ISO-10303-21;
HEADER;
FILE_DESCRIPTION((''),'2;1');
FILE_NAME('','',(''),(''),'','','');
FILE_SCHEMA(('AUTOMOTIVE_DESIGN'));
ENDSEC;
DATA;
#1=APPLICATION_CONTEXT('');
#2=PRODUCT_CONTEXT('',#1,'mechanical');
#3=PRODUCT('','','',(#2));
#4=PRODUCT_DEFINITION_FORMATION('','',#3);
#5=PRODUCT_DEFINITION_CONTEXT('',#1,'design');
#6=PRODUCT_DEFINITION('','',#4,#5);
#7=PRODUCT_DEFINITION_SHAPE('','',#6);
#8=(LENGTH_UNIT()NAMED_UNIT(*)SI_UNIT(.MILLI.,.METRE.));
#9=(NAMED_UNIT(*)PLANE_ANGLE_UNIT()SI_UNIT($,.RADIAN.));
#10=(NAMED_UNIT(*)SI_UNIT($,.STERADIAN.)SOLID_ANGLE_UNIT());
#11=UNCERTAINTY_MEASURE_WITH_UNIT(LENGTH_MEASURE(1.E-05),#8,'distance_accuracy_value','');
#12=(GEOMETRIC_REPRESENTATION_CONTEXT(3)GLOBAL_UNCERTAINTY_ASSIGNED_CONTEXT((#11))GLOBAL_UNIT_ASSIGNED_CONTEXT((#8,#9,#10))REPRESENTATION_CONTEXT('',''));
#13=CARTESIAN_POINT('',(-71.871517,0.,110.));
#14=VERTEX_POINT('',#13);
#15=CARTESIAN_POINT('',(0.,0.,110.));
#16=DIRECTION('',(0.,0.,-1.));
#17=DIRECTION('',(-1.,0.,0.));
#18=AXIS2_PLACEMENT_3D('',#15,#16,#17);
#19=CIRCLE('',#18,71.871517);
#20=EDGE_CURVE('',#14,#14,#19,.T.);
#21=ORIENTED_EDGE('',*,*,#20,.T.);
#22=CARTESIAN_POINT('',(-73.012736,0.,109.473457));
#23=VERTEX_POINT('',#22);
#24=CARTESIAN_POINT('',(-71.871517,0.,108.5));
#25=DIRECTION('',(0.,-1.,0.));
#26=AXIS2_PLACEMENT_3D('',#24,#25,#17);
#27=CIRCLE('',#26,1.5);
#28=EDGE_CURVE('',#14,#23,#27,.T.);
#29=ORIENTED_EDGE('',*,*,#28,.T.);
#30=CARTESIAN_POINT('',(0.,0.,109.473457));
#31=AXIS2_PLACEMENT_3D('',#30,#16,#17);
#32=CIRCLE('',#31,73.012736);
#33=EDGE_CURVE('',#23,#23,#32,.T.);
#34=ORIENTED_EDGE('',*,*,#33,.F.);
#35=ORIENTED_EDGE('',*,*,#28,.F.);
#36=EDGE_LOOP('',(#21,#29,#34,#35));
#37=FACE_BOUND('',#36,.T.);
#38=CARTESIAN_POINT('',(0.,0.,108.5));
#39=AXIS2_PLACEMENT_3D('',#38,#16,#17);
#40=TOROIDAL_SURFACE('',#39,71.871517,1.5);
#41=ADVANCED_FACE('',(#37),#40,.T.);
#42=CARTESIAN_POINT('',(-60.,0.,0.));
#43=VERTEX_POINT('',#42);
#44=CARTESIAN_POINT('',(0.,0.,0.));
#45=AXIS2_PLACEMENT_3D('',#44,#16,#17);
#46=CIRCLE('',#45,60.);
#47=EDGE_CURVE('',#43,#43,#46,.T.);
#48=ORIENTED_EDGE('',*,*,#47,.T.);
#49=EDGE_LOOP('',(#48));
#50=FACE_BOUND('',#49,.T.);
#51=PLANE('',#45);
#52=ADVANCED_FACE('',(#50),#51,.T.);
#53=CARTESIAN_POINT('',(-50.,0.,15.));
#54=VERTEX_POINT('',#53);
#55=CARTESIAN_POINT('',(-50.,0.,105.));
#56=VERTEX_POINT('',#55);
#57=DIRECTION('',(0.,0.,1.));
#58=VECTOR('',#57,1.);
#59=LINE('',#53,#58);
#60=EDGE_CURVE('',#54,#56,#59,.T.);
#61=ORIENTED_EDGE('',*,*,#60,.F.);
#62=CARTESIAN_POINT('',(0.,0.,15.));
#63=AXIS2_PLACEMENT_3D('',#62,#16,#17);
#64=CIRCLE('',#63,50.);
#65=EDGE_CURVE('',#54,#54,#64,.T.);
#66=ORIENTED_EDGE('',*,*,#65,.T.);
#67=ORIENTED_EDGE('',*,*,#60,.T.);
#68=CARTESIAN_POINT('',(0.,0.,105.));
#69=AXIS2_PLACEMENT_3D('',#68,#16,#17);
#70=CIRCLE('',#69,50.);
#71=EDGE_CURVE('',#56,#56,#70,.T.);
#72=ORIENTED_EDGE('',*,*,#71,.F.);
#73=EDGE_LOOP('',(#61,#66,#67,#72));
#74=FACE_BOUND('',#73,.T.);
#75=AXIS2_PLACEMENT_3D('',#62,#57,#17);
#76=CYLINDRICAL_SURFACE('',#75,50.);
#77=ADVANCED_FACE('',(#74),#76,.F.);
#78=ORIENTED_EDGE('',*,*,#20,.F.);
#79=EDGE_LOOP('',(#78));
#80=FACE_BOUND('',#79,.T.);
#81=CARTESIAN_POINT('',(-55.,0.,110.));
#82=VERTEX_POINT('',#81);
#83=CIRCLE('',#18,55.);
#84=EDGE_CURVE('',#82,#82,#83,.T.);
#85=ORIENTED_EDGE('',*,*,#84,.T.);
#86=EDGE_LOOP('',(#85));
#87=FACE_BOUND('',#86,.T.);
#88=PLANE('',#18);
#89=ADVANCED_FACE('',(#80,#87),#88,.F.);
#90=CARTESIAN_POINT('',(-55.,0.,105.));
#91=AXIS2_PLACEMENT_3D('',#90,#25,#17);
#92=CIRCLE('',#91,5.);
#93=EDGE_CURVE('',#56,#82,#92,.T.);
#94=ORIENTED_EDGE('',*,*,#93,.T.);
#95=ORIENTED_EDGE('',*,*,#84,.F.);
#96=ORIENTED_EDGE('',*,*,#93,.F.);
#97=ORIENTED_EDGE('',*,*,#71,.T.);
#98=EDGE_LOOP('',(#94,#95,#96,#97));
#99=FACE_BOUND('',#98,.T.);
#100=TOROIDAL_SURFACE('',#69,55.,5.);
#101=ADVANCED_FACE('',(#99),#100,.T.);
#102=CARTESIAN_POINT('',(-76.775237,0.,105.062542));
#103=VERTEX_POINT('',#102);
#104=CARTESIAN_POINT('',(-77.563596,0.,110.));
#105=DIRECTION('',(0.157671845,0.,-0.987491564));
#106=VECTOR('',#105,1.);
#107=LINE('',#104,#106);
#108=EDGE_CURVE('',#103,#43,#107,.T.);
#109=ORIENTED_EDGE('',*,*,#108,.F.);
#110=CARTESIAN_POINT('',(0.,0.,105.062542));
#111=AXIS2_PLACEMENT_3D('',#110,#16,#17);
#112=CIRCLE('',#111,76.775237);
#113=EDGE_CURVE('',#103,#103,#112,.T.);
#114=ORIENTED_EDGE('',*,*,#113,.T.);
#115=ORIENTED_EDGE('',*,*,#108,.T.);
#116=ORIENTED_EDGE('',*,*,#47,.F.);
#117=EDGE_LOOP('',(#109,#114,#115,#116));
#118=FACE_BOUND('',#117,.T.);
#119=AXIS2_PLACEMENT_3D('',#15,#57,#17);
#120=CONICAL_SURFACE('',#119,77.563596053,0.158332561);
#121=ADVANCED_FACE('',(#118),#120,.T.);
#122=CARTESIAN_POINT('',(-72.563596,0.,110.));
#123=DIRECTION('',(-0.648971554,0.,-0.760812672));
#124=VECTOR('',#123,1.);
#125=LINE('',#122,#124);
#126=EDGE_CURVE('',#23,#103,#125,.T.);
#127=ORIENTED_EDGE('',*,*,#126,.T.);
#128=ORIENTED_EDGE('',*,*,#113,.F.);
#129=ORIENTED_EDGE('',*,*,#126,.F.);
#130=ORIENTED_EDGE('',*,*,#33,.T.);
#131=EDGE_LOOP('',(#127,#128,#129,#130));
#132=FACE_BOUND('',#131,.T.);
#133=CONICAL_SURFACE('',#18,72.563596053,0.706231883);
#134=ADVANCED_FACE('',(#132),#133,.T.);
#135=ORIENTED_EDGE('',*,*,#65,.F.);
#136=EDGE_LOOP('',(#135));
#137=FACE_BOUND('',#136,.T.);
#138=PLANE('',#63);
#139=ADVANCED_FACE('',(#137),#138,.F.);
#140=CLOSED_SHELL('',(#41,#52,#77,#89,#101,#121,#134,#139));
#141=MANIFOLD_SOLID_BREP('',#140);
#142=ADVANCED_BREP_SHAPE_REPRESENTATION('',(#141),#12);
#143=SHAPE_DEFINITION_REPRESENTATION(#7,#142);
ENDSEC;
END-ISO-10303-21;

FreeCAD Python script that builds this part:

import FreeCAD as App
import Part
import Sketcher
from FreeCAD import Vector
Q = App.Units.Quantity


def edges_at(feature, points):
    """Names of the edges that pass closest to the given points."""
    edges = feature.Shape.Edges
    near = lambda p: min(range(len(edges)), key=lambda i: edges[i].distToShape(Part.Vertex(*p))[0])
    return sorted({f"Edge{near(p) + 1}" for p in points})

doc = App.newDocument("Part")
body = doc.addObject("PartDesign::Body", "Body")

sketch1 = body.newObject("Sketcher::SketchObject", "Sketch")
sketch1.AttachmentSupport = (doc.getObject("XZ_Plane"), [""])
sketch1.MapMode = "FlatFace"
sketch1.addGeometry([
    Part.LineSegment(Vector(-60, 0, 0), Vector(0, 0, 0)),
    Part.LineSegment(Vector(0, 0, 0), Vector(0, 15, 0)),
    Part.LineSegment(Vector(0, 15, 0), Vector(-50, 15, 0)),
    Part.LineSegment(Vector(-50, 15, 0), Vector(-50, 110, 0)),
    Part.LineSegment(Vector(-50, 110, 0), Vector(-77.563596, 110, 0)),
    Part.LineSegment(Vector(-77.563596, 110, 0), Vector(-60, 0, 0)),
], False)
sketch1.addConstraint([
    Sketcher.Constraint("Coincident", 0, 2, 1, 1),
    Sketcher.Constraint("Coincident", 1, 2, 2, 1),
    Sketcher.Constraint("Coincident", 2, 2, 3, 1),
    Sketcher.Constraint("Coincident", 3, 2, 4, 1),
    Sketcher.Constraint("Coincident", 4, 2, 5, 1),
    Sketcher.Constraint("Coincident", 5, 2, 0, 1),
    Sketcher.Constraint("Horizontal", 0),
    Sketcher.Constraint("Vertical", 1),
    Sketcher.Constraint("Horizontal", 2),
    Sketcher.Constraint("Vertical", 3),
    Sketcher.Constraint("Horizontal", 4),
    Sketcher.Constraint("Coincident", 0, 2, -1, 1),
    Sketcher.Constraint("DistanceX", 0, 1, 0, 2, Q("60 mm")),
    Sketcher.Constraint("DistanceX", 2, 2, 2, 1, Q("50 mm")),
    Sketcher.Constraint("DistanceY", 1, 1, 1, 2, Q("15 mm")),
    Sketcher.Constraint("DistanceY", 3, 1, 3, 2, Q("95 mm")),
    Sketcher.Constraint("DistanceX", 4, 2, 4, 1, Q("27.563596 mm")),
])
revolution = body.newObject("PartDesign::Revolution", "Revolution")
revolution.Profile = sketch1
revolution.ReferenceAxis = (sketch1, ["V_Axis"])
revolution.Angle = 360
doc.recompute()

fillet = body.newObject("PartDesign::Fillet", "Fillet")
fillet.Base = (revolution, edges_at(revolution, [(50, 0, 110)]))
fillet.Radius = 5
doc.recompute()

chamfer = body.newObject("PartDesign::Chamfer", "Chamfer")
chamfer.Base = (fillet, edges_at(fillet, [(77.564, 0, 110)]))
chamfer.Size = 5
doc.recompute()

fillet2 = body.newObject("PartDesign::Fillet", "Fillet001")
fillet2.Base = (chamfer, edges_at(chamfer, [(72.564, 0, 110)]))
fillet2.Radius = 1.5

doc.recompute()
